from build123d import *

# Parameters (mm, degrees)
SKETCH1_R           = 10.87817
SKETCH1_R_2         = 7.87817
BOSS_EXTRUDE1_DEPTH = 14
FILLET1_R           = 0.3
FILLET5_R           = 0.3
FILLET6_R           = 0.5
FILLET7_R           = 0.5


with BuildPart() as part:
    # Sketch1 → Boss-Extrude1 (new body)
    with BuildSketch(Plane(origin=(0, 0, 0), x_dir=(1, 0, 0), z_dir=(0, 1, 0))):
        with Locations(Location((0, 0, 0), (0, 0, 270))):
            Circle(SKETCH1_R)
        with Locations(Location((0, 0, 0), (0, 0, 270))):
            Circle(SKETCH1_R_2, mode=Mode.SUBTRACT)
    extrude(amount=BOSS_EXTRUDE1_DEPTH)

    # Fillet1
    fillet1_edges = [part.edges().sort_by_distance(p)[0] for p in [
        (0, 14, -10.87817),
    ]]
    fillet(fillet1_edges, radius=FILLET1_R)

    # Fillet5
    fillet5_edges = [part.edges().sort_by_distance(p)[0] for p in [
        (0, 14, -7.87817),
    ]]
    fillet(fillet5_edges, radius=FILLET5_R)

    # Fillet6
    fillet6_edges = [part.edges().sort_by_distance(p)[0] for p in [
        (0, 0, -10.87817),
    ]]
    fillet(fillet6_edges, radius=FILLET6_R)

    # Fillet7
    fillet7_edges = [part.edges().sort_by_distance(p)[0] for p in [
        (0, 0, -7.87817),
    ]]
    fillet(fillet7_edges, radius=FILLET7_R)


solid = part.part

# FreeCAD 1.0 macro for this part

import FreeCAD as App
import Part
import Sketcher
from FreeCAD import Vector
Q = App.Units.Quantity


def edges_at(feature, points):
    """Names of the edges that pass closest to the given points."""
    edges = feature.Shape.Edges
    near = lambda p: min(range(len(edges)), key=lambda i: edges[i].distToShape(Part.Vertex(*p))[0])
    return sorted({f"Edge{near(p) + 1}" for p in points})

doc = App.newDocument("Part")
body = doc.addObject("PartDesign::Body", "Body")

# Sketch on XZ plane
sketch1 = doc.addObject("Sketcher::SketchObject", "Sketch")
body.addObject(sketch1)
sketch1.AttachmentSupport = (doc.XZ_Plane, [""])
sketch1.MapMode = "FlatFace"
sketch1.addGeometry(Part.Circle(Vector(0, 0, 0), Vector(0, 0, 1), 11), False)
sketch1.addGeometry(Part.Circle(Vector(0, 0, 0), Vector(0, 0, 1), 8), False)
sketch1.addConstraint(Sketcher.Constraint("Coincident", 0, 3, -1, 1))
sketch1.addConstraint(Sketcher.Constraint("Coincident", 1, 3, -1, 1))
sketch1.addConstraint(Sketcher.Constraint("Diameter", 0, Q("21.75634 mm")))
sketch1.addConstraint(Sketcher.Constraint("Diameter", 1, Q("15.75634 mm")))
pad1 = doc.addObject("PartDesign::Pad", "Pad")
body.addObject(pad1)
pad1.Profile = sketch1
pad1.Length = 14
pad1.Reversed = True
doc.recompute()

fillet = doc.addObject("PartDesign::Fillet", "Fillet")
body.addObject(fillet)
fillet.Base = (pad1, edges_at(pad1, [(0, 14, -10.878)]))
fillet.Radius = 0.3
doc.recompute()

fillet2 = doc.addObject("PartDesign::Fillet", "Fillet001")
body.addObject(fillet2)
fillet2.Base = (fillet, edges_at(fillet, [(0, 14, -7.878)]))
fillet2.Radius = 0.3
doc.recompute()

fillet3 = doc.addObject("PartDesign::Fillet", "Fillet002")
body.addObject(fillet3)
fillet3.Base = (fillet2, edges_at(fillet2, [(0, 0, -10.878)]))
fillet3.Radius = 0.5
doc.recompute()

fillet4 = doc.addObject("PartDesign::Fillet", "Fillet003")
body.addObject(fillet4)
fillet4.Base = (fillet3, edges_at(fillet3, [(0, 0, -7.878)]))
fillet4.Radius = 0.5

doc.recompute()
